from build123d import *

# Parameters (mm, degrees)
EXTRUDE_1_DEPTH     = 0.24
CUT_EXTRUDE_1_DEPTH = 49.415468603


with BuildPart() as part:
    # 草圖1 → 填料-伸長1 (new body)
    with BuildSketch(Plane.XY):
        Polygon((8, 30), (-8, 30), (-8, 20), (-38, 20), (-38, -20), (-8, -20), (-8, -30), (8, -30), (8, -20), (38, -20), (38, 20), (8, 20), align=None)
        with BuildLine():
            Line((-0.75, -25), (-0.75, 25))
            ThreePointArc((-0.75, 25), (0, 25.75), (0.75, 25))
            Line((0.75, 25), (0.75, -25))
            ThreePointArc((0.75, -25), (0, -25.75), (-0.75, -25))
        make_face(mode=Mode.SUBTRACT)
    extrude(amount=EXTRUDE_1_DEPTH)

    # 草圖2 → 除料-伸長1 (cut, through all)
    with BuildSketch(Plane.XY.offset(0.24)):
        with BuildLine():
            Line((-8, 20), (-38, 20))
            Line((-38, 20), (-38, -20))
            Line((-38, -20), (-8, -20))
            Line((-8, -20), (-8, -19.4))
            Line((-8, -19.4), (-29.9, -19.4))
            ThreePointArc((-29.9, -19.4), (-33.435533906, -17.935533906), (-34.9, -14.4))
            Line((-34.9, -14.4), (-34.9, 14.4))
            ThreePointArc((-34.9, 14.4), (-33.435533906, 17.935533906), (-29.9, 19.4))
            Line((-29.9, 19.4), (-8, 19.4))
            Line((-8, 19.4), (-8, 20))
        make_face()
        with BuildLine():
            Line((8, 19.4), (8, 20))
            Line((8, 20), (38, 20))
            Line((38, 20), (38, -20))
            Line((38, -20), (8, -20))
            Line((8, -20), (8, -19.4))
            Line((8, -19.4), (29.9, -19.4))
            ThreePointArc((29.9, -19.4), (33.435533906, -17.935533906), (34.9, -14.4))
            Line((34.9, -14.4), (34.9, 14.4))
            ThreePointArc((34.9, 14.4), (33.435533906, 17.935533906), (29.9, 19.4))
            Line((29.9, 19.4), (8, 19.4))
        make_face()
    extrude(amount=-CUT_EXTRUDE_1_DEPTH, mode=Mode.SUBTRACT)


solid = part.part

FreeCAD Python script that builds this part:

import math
import FreeCAD as App
import Part
import Sketcher

V = App.Vector

doc = App.newDocument("Part")
body = doc.addObject("PartDesign::Body", "Body")

# Sketch on XY plane
sketch1 = doc.addObject("Sketcher::SketchObject", "Sketch")
body.addObject(sketch1)
sketch1.AttachmentSupport = (doc.XY_Plane, [""])
sketch1.MapMode = "FlatFace"
sketch1.addGeometry(Part.LineSegment(V(8, 30, 0), V(-8, 30, 0)), False)
sketch1.addGeometry(Part.LineSegment(V(-8, 30, 0), V(-8, 20, 0)), False)
sketch1.addGeometry(Part.LineSegment(V(-8, 20, 0), V(-38, 20, 0)), False)
sketch1.addGeometry(Part.LineSegment(V(-38, 20, 0), V(-38, -20, 0)), False)
sketch1.addGeometry(Part.LineSegment(V(-38, -20, 0), V(-8, -20, 0)), False)
sketch1.addGeometry(Part.LineSegment(V(-8, -20, 0), V(-8, -30, 0)), False)
sketch1.addGeometry(Part.LineSegment(V(-8, -30, 0), V(8, -30, 0)), False)
sketch1.addGeometry(Part.LineSegment(V(8, -30, 0), V(8, -20, 0)), False)
sketch1.addGeometry(Part.LineSegment(V(8, -20, 0), V(38, -20, 0)), False)
sketch1.addGeometry(Part.LineSegment(V(38, -20, 0), V(38, 20, 0)), False)
sketch1.addGeometry(Part.LineSegment(V(38, 20, 0), V(8, 20, 0)), False)
sketch1.addGeometry(Part.LineSegment(V(8, 20, 0), V(8, 30, 0)), False)
sketch1.addGeometry(Part.ArcOfCircle(Part.Circle(V(0, -25, 0), V(0, 0, 1), 0.8), math.radians(180), math.radians(360)), False)
sketch1.addGeometry(Part.LineSegment(V(-0.8, -25, 0), V(-0.8, 25, 0)), False)
sketch1.addGeometry(Part.ArcOfCircle(Part.Circle(V(0, 25, 0), V(0, 0, 1), 0.8), math.radians(0), math.radians(180)), False)
sketch1.addGeometry(Part.LineSegment(V(0.8, 25, 0), V(0.8, -25, 0)), False)
sketch1.addConstraint(Sketcher.Constraint("Coincident", 0, 2, 1, 1))
sketch1.addConstraint(Sketcher.Constraint("Coincident", 1, 2, 2, 1))
sketch1.addConstraint(Sketcher.Constraint("Coincident", 2, 2, 3, 1))
sketch1.addConstraint(Sketcher.Constraint("Coincident", 3, 2, 4, 1))
sketch1.addConstraint(Sketcher.Constraint("Coincident", 4, 2, 5, 1))
sketch1.addConstraint(Sketcher.Constraint("Coincident", 5, 2, 6, 1))
sketch1.addConstraint(Sketcher.Constraint("Coincident", 6, 2, 7, 1))
sketch1.addConstraint(Sketcher.Constraint("Coincident", 7, 2, 8, 1))
sketch1.addConstraint(Sketcher.Constraint("Coincident", 8, 2, 9, 1))
sketch1.addConstraint(Sketcher.Constraint("Coincident", 9, 2, 10, 1))
sketch1.addConstraint(Sketcher.Constraint("Coincident", 10, 2, 11, 1))
sketch1.addConstraint(Sketcher.Constraint("Coincident", 11, 2, 0, 1))
sketch1.addConstraint(Sketcher.Constraint("Tangent", 12, 1, 13, 1))
sketch1.addConstraint(Sketcher.Constraint("Tangent", 13, 2, 14, 2))
sketch1.addConstraint(Sketcher.Constraint("Tangent", 14, 1, 15, 1))
sketch1.addConstraint(Sketcher.Constraint("Tangent", 15, 2, 12, 2))
sketch1.addConstraint(Sketcher.Constraint("Horizontal", 0))
sketch1.addConstraint(Sketcher.Constraint("Vertical", 1))
sketch1.addConstraint(Sketcher.Constraint("Horizontal", 2))
sketch1.addConstraint(Sketcher.Constraint("Vertical", 3))
sketch1.addConstraint(Sketcher.Constraint("Horizontal", 4))
sketch1.addConstraint(Sketcher.Constraint("Vertical", 5))
sketch1.addConstraint(Sketcher.Constraint("Horizontal", 6))
sketch1.addConstraint(Sketcher.Constraint("Vertical", 7))
sketch1.addConstraint(Sketcher.Constraint("Horizontal", 8))
sketch1.addConstraint(Sketcher.Constraint("Vertical", 9))
sketch1.addConstraint(Sketcher.Constraint("Horizontal", 10))
sketch1.addConstraint(Sketcher.Constraint("Vertical", 11))
sketch1.addConstraint(Sketcher.Constraint("Vertical", 13))
sketch1.addConstraint(Sketcher.Constraint("Vertical", 15))
sketch1.addConstraint(Sketcher.Constraint("Symmetric", 12, 3, 14, 3, -1, 1))
sketch1.addConstraint(Sketcher.Constraint("Symmetric", 0, 2, 6, 2, -1, 1))
sketch1.addConstraint(Sketcher.Constraint("Symmetric", 2, 2, 8, 2, -1, 1))
sketch1.addConstraint(Sketcher.Constraint("Symmetric", 4, 2, 10, 2, -1, 1))
sketch1.addConstraint(Sketcher.Constraint("Symmetric", 4, 2, 7, 2, -2))
sketch1.addConstraint(Sketcher.Constraint("DistanceX", 0, 2, 0, 1, 16.0))
sketch1.addConstraint(Sketcher.Constraint("DistanceX", 2, 2, 2, 1, 30.0))
sketch1.addConstraint(Sketcher.Constraint("DistanceY", 1, 2, 1, 1, 10.0))
sketch1.addConstraint(Sketcher.Constraint("DistanceY", 3, 2, 3, 1, 40.0))
sketch1.addConstraint(Sketcher.Constraint("DistanceY", 13, 1, 13, 2, 50.0))
sketch1.addConstraint(Sketcher.Constraint("Radius", 12, 0.75))
pad1 = doc.addObject("PartDesign::Pad", "Pad")
body.addObject(pad1)
pad1.Profile = sketch1
pad1.Length = 0.24

# Sketch on XY plane
sketch2 = doc.addObject("Sketcher::SketchObject", "Sketch001")
body.addObject(sketch2)
sketch2.AttachmentSupport = (doc.XY_Plane, [""])
sketch2.MapMode = "FlatFace"
sketch2.AttachmentOffset = App.Placement(V(0, 0, 0.24), App.Rotation())
sketch2.addGeometry(Part.LineSegment(V(-8, 20, 0), V(-38, 20, 0)), False)
sketch2.addGeometry(Part.LineSegment(V(-38, 20, 0), V(-38, -20, 0)), False)
sketch2.addGeometry(Part.LineSegment(V(-38, -20, 0), V(-8, -20, 0)), False)
sketch2.addGeometry(Part.LineSegment(V(-8, -20, 0), V(-8, -19.4, 0)), False)
sketch2.addGeometry(Part.LineSegment(V(-8, -19.4, 0), V(-29.9, -19.4, 0)), False)
sketch2.addGeometry(Part.ArcOfCircle(Part.Circle(V(-29.9, -14.4, 0), V(0, 0, 1), 5), math.radians(180), math.radians(270)), False)
sketch2.addGeometry(Part.LineSegment(V(-34.9, -14.4, 0), V(-34.9, 14.4, 0)), False)
sketch2.addGeometry(Part.ArcOfCircle(Part.Circle(V(-29.9, 14.4, 0), V(0, 0, 1), 5), math.radians(90), math.radians(180)), False)
sketch2.addGeometry(Part.LineSegment(V(-29.9, 19.4, 0), V(-8, 19.4, 0)), False)
sketch2.addGeometry(Part.LineSegment(V(-8, 19.4, 0), V(-8, 20, 0)), False)
sketch2.addGeometry(Part.LineSegment(V(8, 20, 0), V(8, 19.4, 0)), False)
sketch2.addGeometry(Part.LineSegment(V(8, 19.4, 0), V(29.9, 19.4, 0)), False)
sketch2.addGeometry(Part.ArcOfCircle(Part.Circle(V(29.9, 14.4, 0), V(0, 0, 1), 5), math.radians(0), math.radians(90)), False)
sketch2.addGeometry(Part.LineSegment(V(34.9, 14.4, 0), V(34.9, -14.4, 0)), False)
sketch2.addGeometry(Part.ArcOfCircle(Part.Circle(V(29.9, -14.4, 0), V(0, 0, 1), 5), math.radians(-90), math.radians(0)), False)
sketch2.addGeometry(Part.LineSegment(V(29.9, -19.4, 0), V(8, -19.4, 0)), False)
sketch2.addGeometry(Part.LineSegment(V(8, -19.4, 0), V(8, -20, 0)), False)
sketch2.addGeometry(Part.LineSegment(V(8, -20, 0), V(38, -20, 0)), False)
sketch2.addGeometry(Part.LineSegment(V(38, -20, 0), V(38, 20, 0)), False)
sketch2.addGeometry(Part.LineSegment(V(38, 20, 0), V(8, 20, 0)), False)
sketch2.addConstraint(Sketcher.Constraint("Coincident", 0, 2, 1, 1))
sketch2.addConstraint(Sketcher.Constraint("Coincident", 1, 2, 2, 1))
sketch2.addConstraint(Sketcher.Constraint("Coincident", 2, 2, 3, 1))
sketch2.addConstraint(Sketcher.Constraint("Coincident", 3, 2, 4, 1))
sketch2.addConstraint(Sketcher.Constraint("Tangent", 4, 2, 5, 2))
sketch2.addConstraint(Sketcher.Constraint("Tangent", 5, 1, 6, 1))
sketch2.addConstraint(Sketcher.Constraint("Tangent", 6, 2, 7, 2))
sketch2.addConstraint(Sketcher.Constraint("Tangent", 7, 1, 8, 1))
sketch2.addConstraint(Sketcher.Constraint("Coincident", 8, 2, 9, 1))
sketch2.addConstraint(Sketcher.Constraint("Coincident", 9, 2, 0, 1))
sketch2.addConstraint(Sketcher.Constraint("Coincident", 10, 2, 11, 1))
sketch2.addConstraint(Sketcher.Constraint("Tangent", 11, 2, 12, 2))
sketch2.addConstraint(Sketcher.Constraint("Tangent", 12, 1, 13, 1))
sketch2.addConstraint(Sketcher.Constraint("Tangent", 13, 2, 14, 2))
sketch2.addConstraint(Sketcher.Constraint("Tangent", 14, 1, 15, 1))
sketch2.addConstraint(Sketcher.Constraint("Coincident", 15, 2, 16, 1))
sketch2.addConstraint(Sketcher.Constraint("Coincident", 16, 2, 17, 1))
sketch2.addConstraint(Sketcher.Constraint("Coincident", 17, 2, 18, 1))
sketch2.addConstraint(Sketcher.Constraint("Coincident", 18, 2, 19, 1))
sketch2.addConstraint(Sketcher.Constraint("Coincident", 19, 2, 10, 1))
sketch2.addConstraint(Sketcher.Constraint("Horizontal", 0))
sketch2.addConstraint(Sketcher.Constraint("Vertical", 1))
sketch2.addConstraint(Sketcher.Constraint("Horizontal", 2))
sketch2.addConstraint(Sketcher.Constraint("Vertical", 3))
sketch2.addConstraint(Sketcher.Constraint("Horizontal", 4))
sketch2.addConstraint(Sketcher.Constraint("Vertical", 6))
sketch2.addConstraint(Sketcher.Constraint("Horizontal", 8))
sketch2.addConstraint(Sketcher.Constraint("Vertical", 9))
sketch2.addConstraint(Sketcher.Constraint("Vertical", 10))
sketch2.addConstraint(Sketcher.Constraint("Horizontal", 11))
sketch2.addConstraint(Sketcher.Constraint("Vertical", 13))
sketch2.addConstraint(Sketcher.Constraint("Horizontal", 15))
sketch2.addConstraint(Sketcher.Constraint("Vertical", 16))
sketch2.addConstraint(Sketcher.Constraint("Horizontal", 17))
sketch2.addConstraint(Sketcher.Constraint("Vertical", 18))
sketch2.addConstraint(Sketcher.Constraint("Horizontal", 19))
sketch2.addConstraint(Sketcher.Constraint("Equal", 5, 7))
sketch2.addConstraint(Sketcher.Constraint("Equal", 7, 12))
sketch2.addConstraint(Sketcher.Constraint("Equal", 12, 14))
sketch2.addConstraint(Sketcher.Constraint("Symmetric", 5, 3, 12, 3, -1, 1))
sketch2.addConstraint(Sketcher.Constraint("Symmetric", 8, 2, 15, 2, -1, 1))
sketch2.addConstraint(Sketcher.Constraint("Symmetric", 0, 2, 17, 2, -1, 1))
sketch2.addConstraint(Sketcher.Constraint("Symmetric", 2, 2, 19, 2, -1, 1))
sketch2.addConstraint(Sketcher.Constraint("Symmetric", 8, 2, 10, 2, -2))
sketch2.addConstraint(Sketcher.Constraint("Horizontal", 2, 2, 16, 2))
sketch2.addConstraint(Sketcher.Constraint("Radius", 5, 5.0))
sketch2.addConstraint(Sketcher.Constraint("DistanceX", 0, 2, 0, 1, 30.0))
sketch2.addConstraint(Sketcher.Constraint("DistanceY", 1, 2, 1, 1, 40.0))
sketch2.addConstraint(Sketcher.Constraint("DistanceX", 4, 2, 4, 1, 21.9))
sketch2.addConstraint(Sketcher.Constraint("DistanceY", 3, 1, 3, 2, 0.6))
sketch2.addConstraint(Sketcher.Constraint("DistanceX", 0, 2, -1, 1, 38.0))
pocket1 = doc.addObject("PartDesign::Pocket", "Pocket")
body.addObject(pocket1)
pocket1.Profile = sketch2
pocket1.Type = "ThroughAll"

doc.recompute()
